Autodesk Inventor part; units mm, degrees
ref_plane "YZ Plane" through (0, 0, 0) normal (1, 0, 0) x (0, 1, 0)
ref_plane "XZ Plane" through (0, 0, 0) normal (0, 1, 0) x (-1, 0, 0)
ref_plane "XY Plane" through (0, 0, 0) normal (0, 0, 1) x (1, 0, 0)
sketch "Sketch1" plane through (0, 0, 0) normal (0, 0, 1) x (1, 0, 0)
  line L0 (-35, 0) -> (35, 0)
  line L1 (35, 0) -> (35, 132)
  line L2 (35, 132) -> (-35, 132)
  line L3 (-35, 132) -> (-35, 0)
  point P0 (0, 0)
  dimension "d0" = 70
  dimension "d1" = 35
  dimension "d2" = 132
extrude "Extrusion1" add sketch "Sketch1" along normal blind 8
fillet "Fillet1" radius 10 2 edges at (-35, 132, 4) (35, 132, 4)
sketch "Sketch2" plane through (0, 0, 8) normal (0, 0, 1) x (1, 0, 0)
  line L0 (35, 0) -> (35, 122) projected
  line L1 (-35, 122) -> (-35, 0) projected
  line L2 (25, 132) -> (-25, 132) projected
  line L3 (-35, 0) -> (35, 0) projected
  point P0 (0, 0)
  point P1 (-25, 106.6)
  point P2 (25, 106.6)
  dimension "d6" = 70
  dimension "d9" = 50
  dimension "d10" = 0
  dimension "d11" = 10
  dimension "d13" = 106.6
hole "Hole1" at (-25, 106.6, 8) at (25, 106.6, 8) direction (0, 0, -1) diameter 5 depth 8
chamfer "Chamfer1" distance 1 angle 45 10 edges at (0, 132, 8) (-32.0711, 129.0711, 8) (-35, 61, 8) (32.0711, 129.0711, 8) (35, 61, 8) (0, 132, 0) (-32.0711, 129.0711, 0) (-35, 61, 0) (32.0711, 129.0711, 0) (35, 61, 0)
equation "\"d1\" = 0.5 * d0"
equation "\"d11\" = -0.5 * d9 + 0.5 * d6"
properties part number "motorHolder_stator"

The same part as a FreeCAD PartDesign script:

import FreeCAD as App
import Part
import Sketcher


def edges_at(feature, points):
    """Names of the edges that pass closest to the given points."""
    edges = feature.Shape.Edges
    near = lambda p: min(range(len(edges)), key=lambda i: edges[i].distToShape(Part.Vertex(*p))[0])
    return sorted({f"Edge{near(p) + 1}" for p in points})

doc = App.newDocument("Part")
body = doc.addObject("PartDesign::Body", "Body")

sketch1 = body.newObject("Sketcher::SketchObject", "Sketch")
sketch1.AttachmentSupport = (doc.getObject("XY_Plane"), [""])
sketch1.MapMode = "FlatFace"
sketch1.addGeometry([
    Part.LineSegment(App.Vector(-35, 132, 0), App.Vector(-35, 0, 0)),
    Part.LineSegment(App.Vector(-35, 0, 0), App.Vector(35, 0, 0)),
    Part.LineSegment(App.Vector(35, 0, 0), App.Vector(35, 132, 0)),
    Part.LineSegment(App.Vector(35, 132, 0), App.Vector(-35, 132, 0)),
], False)
sketch1.addConstraint([
    Sketcher.Constraint("Coincident", 0, 2, 1, 1),
    Sketcher.Constraint("Coincident", 1, 2, 2, 1),
    Sketcher.Constraint("Coincident", 2, 2, 3, 1),
    Sketcher.Constraint("Coincident", 3, 2, 0, 1),
    Sketcher.Constraint("Vertical", 0),
    Sketcher.Constraint("Horizontal", 1),
    Sketcher.Constraint("Vertical", 2),
    Sketcher.Constraint("Horizontal", 3),
    Sketcher.Constraint("Symmetric", 0, 2, 1, 2, -1, 1),
    Sketcher.Constraint("DistanceX", 1, 1, 1, 2, 70.0),
    Sketcher.Constraint("DistanceY", 0, 2, 0, 1, 132.0),
])
pad1 = body.newObject("PartDesign::Pad", "Pad")
pad1.Profile = sketch1
pad1.Length = 8
doc.recompute()

fillet = body.newObject("PartDesign::Fillet", "Fillet")
fillet.Base = (pad1, edges_at(pad1, [(-35, 132, 4), (35, 132, 4)]))
fillet.Radius = 10

sketch2 = body.newObject("Sketcher::SketchObject", "Sketch001")
sketch2.AttachmentSupport = (doc.getObject("XY_Plane"), [""])
sketch2.MapMode = "FlatFace"
sketch2.AttachmentOffset = App.Placement(App.Vector(0, 0, 8), App.Rotation())
sketch2.addGeometry([
    Part.Circle(App.Vector(-25, 106.6, 0), App.Vector(0, 0, 1), 2.5),
    Part.Circle(App.Vector(25, 106.6, 0), App.Vector(0, 0, 1), 2.5),
], False)
sketch2.addConstraint([
    Sketcher.Constraint("Equal", 0, 1),
    Sketcher.Constraint("Symmetric", 0, 3, 1, 3, -2),
    Sketcher.Constraint("Diameter", 0, 5.0),
    Sketcher.Constraint("DistanceX", 0, 3, -1, 1, 25.0),
    Sketcher.Constraint("DistanceY", -1, 1, 0, 3, 106.6),
])
doc.recompute()
hole = body.newObject("PartDesign::Hole", "Hole")
hole.Profile = sketch2
hole.ThreadType = "None"
hole.Diameter = 5
hole.DepthType = "Dimension"
hole.Depth = 8
hole.DrillPoint = "Flat"
doc.recompute()

chamfer = body.newObject("PartDesign::Chamfer", "Chamfer")
chamfer.Base = (hole, edges_at(hole, [
    (0, 132, 8),
    (-32.071, 129.071, 8),
    (-35, 61, 8),
    (32.071, 129.071, 8),
    (35, 61, 8),
    (0, 132, 0),
    (-32.071, 129.071, 0),
    (-35, 61, 0),
    (32.071, 129.071, 0),
    (35, 61, 0),
]))
chamfer.Size = 1

doc.recompute()
